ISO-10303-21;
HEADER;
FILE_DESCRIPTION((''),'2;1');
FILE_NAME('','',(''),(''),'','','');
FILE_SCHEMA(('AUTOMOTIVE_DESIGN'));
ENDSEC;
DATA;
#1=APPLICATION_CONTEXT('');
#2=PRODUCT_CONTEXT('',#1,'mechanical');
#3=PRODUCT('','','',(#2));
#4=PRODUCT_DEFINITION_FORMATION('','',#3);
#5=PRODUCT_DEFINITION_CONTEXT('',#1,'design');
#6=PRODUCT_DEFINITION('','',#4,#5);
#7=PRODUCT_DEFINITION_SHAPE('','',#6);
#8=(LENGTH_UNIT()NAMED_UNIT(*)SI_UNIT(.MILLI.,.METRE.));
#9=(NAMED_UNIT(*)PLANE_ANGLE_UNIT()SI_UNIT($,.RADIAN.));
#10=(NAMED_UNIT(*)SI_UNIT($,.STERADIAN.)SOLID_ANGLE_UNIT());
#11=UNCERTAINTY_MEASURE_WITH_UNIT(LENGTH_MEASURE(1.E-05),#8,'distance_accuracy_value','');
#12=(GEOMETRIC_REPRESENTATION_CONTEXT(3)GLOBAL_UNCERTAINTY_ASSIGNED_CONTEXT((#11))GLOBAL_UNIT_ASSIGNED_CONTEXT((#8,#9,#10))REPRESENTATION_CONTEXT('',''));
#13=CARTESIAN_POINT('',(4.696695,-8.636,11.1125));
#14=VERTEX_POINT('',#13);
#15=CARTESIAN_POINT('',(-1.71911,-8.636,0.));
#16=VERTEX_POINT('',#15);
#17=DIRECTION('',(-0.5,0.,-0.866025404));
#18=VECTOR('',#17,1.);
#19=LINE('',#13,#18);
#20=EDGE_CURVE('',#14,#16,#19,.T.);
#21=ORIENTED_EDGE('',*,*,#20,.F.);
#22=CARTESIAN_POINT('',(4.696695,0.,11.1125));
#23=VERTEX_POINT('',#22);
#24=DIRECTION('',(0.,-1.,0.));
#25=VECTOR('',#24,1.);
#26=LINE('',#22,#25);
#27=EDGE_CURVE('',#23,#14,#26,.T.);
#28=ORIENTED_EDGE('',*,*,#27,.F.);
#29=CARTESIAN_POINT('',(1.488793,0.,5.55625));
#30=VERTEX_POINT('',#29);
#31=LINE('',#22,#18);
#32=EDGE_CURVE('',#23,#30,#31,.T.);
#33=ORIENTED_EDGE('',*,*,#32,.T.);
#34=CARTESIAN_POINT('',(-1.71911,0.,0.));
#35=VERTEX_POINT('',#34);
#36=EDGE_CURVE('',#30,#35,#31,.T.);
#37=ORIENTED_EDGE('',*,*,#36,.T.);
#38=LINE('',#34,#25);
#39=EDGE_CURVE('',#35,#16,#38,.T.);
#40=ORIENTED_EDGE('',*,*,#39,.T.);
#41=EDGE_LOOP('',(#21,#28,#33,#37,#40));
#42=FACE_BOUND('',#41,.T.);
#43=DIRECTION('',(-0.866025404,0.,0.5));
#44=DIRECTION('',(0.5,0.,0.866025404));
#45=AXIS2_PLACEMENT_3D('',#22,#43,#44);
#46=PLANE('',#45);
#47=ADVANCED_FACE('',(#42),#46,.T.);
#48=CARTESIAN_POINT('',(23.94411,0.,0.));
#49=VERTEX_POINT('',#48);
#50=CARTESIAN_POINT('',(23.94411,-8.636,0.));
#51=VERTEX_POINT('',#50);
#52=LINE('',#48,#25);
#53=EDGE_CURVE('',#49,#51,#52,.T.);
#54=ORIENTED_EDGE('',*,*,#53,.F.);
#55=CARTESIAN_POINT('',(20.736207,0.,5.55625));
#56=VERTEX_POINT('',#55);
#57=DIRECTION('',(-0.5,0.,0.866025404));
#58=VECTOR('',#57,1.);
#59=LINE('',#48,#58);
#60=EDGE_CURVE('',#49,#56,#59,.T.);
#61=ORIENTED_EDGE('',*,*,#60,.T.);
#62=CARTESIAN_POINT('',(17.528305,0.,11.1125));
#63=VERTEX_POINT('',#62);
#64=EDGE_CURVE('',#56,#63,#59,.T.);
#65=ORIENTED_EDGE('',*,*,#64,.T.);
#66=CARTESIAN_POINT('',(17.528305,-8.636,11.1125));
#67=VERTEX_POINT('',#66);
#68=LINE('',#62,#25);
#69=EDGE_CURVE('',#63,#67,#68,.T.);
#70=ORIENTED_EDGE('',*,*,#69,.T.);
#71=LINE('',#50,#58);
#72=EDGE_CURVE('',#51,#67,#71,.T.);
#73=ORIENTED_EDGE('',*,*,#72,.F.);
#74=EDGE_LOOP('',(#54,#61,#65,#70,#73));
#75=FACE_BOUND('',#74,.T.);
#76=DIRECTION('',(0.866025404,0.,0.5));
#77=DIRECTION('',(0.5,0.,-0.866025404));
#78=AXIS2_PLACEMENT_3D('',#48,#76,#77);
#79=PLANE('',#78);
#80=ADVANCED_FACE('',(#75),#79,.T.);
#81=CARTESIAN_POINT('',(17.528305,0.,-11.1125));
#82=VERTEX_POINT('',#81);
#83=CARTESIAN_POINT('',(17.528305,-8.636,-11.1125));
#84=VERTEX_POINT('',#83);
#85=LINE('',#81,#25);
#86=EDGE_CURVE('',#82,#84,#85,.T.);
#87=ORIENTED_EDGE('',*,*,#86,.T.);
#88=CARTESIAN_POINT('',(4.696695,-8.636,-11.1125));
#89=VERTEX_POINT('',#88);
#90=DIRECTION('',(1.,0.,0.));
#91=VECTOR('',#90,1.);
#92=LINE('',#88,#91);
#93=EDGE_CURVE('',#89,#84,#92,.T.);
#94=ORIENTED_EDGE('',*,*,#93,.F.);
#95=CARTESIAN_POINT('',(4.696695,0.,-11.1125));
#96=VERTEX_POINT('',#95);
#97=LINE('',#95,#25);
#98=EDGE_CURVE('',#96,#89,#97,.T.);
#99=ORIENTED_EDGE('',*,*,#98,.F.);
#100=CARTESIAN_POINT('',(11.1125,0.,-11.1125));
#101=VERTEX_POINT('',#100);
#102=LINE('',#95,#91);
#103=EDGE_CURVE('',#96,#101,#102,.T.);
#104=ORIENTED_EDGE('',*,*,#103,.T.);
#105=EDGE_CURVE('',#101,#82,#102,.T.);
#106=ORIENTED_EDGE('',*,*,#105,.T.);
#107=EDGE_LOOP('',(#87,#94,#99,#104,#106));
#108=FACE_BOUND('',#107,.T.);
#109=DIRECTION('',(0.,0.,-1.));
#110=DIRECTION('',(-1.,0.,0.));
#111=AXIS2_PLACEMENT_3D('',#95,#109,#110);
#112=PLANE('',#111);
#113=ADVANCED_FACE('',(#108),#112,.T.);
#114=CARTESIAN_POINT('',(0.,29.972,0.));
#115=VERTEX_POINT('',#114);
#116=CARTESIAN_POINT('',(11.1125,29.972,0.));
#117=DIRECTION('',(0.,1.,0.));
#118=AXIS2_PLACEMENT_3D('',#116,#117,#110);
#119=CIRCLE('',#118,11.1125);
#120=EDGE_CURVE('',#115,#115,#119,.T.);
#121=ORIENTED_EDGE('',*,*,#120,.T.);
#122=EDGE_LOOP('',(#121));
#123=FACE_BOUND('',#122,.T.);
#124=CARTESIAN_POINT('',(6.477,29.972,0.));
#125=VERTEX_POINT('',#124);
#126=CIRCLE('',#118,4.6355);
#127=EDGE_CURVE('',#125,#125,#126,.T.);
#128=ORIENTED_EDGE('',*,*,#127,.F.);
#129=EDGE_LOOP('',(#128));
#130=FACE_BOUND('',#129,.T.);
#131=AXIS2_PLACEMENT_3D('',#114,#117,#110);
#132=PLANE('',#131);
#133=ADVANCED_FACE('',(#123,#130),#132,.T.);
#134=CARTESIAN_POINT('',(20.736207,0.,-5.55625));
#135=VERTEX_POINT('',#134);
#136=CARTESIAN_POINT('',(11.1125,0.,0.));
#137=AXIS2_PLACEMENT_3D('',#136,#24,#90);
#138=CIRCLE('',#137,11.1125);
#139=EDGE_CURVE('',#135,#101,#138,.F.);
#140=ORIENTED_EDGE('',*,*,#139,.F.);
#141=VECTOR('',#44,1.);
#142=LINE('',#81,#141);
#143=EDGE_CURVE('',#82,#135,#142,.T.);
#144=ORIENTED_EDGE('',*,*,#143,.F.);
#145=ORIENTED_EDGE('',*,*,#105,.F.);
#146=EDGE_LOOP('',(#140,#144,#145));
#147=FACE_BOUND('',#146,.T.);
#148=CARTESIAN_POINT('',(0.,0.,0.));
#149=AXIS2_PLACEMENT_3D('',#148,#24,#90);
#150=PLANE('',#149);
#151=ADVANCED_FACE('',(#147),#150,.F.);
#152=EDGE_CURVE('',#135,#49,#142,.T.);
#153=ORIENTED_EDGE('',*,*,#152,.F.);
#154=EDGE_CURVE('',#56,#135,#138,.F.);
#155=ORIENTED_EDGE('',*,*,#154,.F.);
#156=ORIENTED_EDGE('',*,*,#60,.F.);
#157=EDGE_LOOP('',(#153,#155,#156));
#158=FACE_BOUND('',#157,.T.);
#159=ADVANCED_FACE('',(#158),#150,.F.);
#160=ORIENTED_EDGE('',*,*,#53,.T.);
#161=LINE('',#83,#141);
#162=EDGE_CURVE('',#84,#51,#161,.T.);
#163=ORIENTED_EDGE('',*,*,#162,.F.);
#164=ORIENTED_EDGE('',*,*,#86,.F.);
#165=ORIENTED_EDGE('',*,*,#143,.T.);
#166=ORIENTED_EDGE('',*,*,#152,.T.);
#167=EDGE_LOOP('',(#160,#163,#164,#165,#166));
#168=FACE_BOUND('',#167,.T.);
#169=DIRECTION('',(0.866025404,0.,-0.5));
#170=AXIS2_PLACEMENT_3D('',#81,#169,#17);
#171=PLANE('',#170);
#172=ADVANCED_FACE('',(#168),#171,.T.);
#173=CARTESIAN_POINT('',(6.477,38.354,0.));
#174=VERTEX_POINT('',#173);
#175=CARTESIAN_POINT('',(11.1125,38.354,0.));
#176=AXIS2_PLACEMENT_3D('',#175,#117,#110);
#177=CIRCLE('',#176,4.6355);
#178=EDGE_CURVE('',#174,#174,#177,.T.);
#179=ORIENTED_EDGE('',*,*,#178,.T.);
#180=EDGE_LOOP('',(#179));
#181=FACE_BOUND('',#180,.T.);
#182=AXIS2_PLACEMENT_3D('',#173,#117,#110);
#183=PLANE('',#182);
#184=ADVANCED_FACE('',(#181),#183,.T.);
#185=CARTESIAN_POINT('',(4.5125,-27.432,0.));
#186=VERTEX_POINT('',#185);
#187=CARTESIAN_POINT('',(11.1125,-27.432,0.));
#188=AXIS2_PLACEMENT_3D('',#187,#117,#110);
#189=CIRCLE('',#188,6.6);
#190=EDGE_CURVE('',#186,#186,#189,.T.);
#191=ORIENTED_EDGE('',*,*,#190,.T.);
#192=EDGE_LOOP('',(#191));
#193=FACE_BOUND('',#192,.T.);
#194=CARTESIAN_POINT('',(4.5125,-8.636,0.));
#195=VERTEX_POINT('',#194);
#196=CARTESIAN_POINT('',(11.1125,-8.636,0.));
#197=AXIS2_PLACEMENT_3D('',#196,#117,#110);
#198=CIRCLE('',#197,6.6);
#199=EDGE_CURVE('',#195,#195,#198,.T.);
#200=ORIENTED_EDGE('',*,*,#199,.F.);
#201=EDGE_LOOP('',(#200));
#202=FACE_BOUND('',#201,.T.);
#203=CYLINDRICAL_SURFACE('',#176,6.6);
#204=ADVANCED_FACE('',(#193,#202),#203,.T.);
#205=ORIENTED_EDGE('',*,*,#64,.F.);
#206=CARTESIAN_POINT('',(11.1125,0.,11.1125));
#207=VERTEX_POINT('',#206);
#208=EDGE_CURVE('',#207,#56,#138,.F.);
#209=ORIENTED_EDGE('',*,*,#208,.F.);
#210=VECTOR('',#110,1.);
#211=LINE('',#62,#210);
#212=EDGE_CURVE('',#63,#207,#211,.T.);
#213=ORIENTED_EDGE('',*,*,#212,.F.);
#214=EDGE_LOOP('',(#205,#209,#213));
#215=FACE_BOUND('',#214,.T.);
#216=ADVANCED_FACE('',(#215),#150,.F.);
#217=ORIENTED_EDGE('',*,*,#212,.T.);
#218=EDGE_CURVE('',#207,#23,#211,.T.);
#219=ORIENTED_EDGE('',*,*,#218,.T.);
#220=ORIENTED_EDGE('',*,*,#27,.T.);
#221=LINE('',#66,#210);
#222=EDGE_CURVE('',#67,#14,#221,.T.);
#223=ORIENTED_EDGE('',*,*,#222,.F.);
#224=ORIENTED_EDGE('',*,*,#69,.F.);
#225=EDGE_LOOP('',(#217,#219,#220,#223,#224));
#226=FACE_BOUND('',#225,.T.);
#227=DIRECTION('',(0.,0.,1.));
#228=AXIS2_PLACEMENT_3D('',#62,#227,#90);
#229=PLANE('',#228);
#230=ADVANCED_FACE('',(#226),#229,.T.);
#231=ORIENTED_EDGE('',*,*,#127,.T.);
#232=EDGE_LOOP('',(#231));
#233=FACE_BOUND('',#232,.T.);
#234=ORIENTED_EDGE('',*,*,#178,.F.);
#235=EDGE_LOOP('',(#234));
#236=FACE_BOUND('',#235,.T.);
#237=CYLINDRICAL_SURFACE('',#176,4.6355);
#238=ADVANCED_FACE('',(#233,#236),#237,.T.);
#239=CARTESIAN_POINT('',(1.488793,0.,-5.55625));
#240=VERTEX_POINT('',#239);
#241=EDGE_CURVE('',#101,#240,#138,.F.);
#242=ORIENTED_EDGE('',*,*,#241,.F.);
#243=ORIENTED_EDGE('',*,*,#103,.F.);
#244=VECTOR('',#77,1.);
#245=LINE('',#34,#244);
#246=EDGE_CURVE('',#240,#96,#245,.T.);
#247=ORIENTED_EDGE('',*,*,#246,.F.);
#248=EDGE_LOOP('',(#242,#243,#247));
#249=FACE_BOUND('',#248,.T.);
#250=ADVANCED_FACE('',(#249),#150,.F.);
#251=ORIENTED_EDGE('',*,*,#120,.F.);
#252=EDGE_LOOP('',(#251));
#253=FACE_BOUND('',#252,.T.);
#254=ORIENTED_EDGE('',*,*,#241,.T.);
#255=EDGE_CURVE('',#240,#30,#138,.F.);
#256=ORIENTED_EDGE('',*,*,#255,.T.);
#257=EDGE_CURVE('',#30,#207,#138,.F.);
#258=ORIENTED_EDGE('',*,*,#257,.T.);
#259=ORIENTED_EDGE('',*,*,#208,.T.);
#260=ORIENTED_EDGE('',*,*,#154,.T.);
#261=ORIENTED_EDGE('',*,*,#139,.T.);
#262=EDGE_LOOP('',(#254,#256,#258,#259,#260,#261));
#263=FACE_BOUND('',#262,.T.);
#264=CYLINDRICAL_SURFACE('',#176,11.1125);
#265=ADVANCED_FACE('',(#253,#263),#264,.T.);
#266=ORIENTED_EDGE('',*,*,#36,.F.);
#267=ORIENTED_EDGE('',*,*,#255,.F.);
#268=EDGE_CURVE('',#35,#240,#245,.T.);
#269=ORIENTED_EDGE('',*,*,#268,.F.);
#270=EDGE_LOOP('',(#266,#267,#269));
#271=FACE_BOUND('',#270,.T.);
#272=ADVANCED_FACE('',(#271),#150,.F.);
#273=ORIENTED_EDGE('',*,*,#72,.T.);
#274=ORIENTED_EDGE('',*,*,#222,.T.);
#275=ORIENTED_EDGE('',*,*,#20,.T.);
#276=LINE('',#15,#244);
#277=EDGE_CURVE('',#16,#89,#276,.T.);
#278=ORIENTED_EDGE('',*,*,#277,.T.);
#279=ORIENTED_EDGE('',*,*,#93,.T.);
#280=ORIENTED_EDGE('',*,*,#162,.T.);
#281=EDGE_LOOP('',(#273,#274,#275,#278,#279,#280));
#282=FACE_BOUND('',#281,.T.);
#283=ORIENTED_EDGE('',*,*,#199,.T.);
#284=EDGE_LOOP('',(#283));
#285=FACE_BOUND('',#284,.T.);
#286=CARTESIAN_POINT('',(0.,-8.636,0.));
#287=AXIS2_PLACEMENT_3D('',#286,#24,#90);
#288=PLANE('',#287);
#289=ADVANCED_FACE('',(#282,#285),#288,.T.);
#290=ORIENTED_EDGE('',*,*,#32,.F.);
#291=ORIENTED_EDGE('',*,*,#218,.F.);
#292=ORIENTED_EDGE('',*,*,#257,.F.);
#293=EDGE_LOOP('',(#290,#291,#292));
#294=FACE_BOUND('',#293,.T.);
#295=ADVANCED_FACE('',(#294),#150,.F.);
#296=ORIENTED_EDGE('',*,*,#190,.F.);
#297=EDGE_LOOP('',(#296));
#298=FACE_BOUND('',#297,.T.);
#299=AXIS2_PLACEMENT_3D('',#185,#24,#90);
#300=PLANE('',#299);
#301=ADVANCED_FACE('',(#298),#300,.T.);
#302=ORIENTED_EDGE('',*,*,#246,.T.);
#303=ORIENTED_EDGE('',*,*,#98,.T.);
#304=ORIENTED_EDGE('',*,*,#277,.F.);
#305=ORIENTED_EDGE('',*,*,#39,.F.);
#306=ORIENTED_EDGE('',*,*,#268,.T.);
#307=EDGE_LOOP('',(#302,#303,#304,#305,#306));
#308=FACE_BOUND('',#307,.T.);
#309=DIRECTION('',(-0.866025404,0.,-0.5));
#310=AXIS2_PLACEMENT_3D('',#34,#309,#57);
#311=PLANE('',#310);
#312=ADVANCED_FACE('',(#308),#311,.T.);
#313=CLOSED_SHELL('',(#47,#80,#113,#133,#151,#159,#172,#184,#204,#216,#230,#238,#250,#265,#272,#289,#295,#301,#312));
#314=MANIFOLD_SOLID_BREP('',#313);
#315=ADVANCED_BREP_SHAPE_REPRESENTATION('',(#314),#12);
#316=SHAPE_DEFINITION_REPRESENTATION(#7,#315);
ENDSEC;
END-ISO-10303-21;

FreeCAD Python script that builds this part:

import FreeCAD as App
import Part
import Sketcher

V = App.Vector
Q = App.Units.Quantity


def add_polygon(sketch, points):
    """Adds a closed chain of lines whose ends are joined by coincident constraints."""
    first, n = sketch.GeometryCount, len(points)
    for a, b in zip(points, points[1:] + points[:1]):
        sketch.addGeometry(Part.LineSegment(App.Vector(*a, 0), App.Vector(*b, 0)), False)
    for i in range(n):
        sketch.addConstraint(Sketcher.Constraint("Coincident", first + i, 2, first + (i + 1) % n, 1))

doc = App.newDocument("Part")
body = doc.addObject("PartDesign::Body", "Body")

sketch1 = body.newObject("Sketcher::SketchObject", "Sketch")
sketch1.AttachmentSupport = (doc.getObject("XY_Plane"), [""])
sketch1.MapMode = "FlatFace"
add_polygon(sketch1, [(0, 30), (0, -8.6), (4.5, -8.6), (4.5, -27.4), (11.1, -27.4), (11.1, 38.4), (6.5, 38.4), (6.5, 30)])
sketch1.addGeometry(Part.LineSegment(V(11.1, 38.4, 0), V(11.1, -27.4, 0)), True)
sketch1.addConstraint([
    Sketcher.Constraint("Vertical", 0),
    Sketcher.Constraint("Horizontal", 1),
    Sketcher.Constraint("Vertical", 2),
    Sketcher.Constraint("Horizontal", 3),
    Sketcher.Constraint("Vertical", 4),
    Sketcher.Constraint("Horizontal", 5),
    Sketcher.Constraint("Vertical", 6),
    Sketcher.Constraint("Horizontal", 7),
    Sketcher.Constraint("Vertical", 8),
    Sketcher.Constraint("Coincident", 8, 1, 4, 2),
    Sketcher.Constraint("PointOnObject", 0, 2, -2),
    Sketcher.Constraint("Horizontal", 2, 2, 8, 2),
    Sketcher.Constraint("DistanceY", 0, 2, 0, 1, Q("1.52 in")),
    Sketcher.Constraint("DistanceY", 2, 2, 2, 1, Q("0.74 in")),
    Sketcher.Constraint("DistanceY", 4, 1, 4, 2, Q("2.59 in")),
    Sketcher.Constraint("DistanceX", 7, 2, 7, 1, Q("0.255 in")),
    Sketcher.Constraint("DistanceY", 0, 2, -1, 1, Q("0.34 in")),
    Sketcher.Constraint("DistanceX", 5, 2, 5, 1, Q("0.1825 in")),
    Sketcher.Constraint("DistanceX", 1, 1, 1, 2, Q("4.5125 mm")),
])
revolution = body.newObject("PartDesign::Revolution", "Revolution")
revolution.Profile = sketch1
revolution.ReferenceAxis = (sketch1, ["Axis0"])
revolution.Angle = 360

sketch2 = body.newObject("Sketcher::SketchObject", "Sketch001")
sketch2.AttachmentSupport = (doc.getObject("XZ_Plane"), [""])
sketch2.MapMode = "FlatFace"
sketch2.AttachmentOffset = App.Placement(V(0, 0, 0.34 * 25.4), App.Rotation())
add_polygon(sketch2, [(24, 0), (18, 11), (5, 11), (-2, 0), (5, -11), (18, -11)])
sketch2.addConstraint([
    Sketcher.Constraint("Horizontal", 1),
    Sketcher.Constraint("Horizontal", 4),
    Sketcher.Constraint("Symmetric", 1, 2, 3, 2, -1),
    Sketcher.Constraint("PointOnObject", 2, 2, -1),
    Sketcher.Constraint("PointOnObject", 5, 2, -1),
    Sketcher.Constraint("Parallel", 0, 3),
    Sketcher.Constraint("Parallel", 2, 5),
    Sketcher.Constraint("Angle", 0, Q("120 deg")),
    Sketcher.Constraint("DistanceY", -1, 1, 0, 2, Q("0.4375 in")),
    Sketcher.Constraint("DistanceX", 1, 2, 1, 1, Q("12.83161 mm")),
    Sketcher.Constraint("DistanceX", 2, 2, -1, 1, Q("1.71911 mm")),
])
pad1 = body.newObject("PartDesign::Pad", "Pad")
pad1.Profile = sketch2
pad1.Length = Q("0.34 in")
pad1.Reversed = True

doc.recompute()
